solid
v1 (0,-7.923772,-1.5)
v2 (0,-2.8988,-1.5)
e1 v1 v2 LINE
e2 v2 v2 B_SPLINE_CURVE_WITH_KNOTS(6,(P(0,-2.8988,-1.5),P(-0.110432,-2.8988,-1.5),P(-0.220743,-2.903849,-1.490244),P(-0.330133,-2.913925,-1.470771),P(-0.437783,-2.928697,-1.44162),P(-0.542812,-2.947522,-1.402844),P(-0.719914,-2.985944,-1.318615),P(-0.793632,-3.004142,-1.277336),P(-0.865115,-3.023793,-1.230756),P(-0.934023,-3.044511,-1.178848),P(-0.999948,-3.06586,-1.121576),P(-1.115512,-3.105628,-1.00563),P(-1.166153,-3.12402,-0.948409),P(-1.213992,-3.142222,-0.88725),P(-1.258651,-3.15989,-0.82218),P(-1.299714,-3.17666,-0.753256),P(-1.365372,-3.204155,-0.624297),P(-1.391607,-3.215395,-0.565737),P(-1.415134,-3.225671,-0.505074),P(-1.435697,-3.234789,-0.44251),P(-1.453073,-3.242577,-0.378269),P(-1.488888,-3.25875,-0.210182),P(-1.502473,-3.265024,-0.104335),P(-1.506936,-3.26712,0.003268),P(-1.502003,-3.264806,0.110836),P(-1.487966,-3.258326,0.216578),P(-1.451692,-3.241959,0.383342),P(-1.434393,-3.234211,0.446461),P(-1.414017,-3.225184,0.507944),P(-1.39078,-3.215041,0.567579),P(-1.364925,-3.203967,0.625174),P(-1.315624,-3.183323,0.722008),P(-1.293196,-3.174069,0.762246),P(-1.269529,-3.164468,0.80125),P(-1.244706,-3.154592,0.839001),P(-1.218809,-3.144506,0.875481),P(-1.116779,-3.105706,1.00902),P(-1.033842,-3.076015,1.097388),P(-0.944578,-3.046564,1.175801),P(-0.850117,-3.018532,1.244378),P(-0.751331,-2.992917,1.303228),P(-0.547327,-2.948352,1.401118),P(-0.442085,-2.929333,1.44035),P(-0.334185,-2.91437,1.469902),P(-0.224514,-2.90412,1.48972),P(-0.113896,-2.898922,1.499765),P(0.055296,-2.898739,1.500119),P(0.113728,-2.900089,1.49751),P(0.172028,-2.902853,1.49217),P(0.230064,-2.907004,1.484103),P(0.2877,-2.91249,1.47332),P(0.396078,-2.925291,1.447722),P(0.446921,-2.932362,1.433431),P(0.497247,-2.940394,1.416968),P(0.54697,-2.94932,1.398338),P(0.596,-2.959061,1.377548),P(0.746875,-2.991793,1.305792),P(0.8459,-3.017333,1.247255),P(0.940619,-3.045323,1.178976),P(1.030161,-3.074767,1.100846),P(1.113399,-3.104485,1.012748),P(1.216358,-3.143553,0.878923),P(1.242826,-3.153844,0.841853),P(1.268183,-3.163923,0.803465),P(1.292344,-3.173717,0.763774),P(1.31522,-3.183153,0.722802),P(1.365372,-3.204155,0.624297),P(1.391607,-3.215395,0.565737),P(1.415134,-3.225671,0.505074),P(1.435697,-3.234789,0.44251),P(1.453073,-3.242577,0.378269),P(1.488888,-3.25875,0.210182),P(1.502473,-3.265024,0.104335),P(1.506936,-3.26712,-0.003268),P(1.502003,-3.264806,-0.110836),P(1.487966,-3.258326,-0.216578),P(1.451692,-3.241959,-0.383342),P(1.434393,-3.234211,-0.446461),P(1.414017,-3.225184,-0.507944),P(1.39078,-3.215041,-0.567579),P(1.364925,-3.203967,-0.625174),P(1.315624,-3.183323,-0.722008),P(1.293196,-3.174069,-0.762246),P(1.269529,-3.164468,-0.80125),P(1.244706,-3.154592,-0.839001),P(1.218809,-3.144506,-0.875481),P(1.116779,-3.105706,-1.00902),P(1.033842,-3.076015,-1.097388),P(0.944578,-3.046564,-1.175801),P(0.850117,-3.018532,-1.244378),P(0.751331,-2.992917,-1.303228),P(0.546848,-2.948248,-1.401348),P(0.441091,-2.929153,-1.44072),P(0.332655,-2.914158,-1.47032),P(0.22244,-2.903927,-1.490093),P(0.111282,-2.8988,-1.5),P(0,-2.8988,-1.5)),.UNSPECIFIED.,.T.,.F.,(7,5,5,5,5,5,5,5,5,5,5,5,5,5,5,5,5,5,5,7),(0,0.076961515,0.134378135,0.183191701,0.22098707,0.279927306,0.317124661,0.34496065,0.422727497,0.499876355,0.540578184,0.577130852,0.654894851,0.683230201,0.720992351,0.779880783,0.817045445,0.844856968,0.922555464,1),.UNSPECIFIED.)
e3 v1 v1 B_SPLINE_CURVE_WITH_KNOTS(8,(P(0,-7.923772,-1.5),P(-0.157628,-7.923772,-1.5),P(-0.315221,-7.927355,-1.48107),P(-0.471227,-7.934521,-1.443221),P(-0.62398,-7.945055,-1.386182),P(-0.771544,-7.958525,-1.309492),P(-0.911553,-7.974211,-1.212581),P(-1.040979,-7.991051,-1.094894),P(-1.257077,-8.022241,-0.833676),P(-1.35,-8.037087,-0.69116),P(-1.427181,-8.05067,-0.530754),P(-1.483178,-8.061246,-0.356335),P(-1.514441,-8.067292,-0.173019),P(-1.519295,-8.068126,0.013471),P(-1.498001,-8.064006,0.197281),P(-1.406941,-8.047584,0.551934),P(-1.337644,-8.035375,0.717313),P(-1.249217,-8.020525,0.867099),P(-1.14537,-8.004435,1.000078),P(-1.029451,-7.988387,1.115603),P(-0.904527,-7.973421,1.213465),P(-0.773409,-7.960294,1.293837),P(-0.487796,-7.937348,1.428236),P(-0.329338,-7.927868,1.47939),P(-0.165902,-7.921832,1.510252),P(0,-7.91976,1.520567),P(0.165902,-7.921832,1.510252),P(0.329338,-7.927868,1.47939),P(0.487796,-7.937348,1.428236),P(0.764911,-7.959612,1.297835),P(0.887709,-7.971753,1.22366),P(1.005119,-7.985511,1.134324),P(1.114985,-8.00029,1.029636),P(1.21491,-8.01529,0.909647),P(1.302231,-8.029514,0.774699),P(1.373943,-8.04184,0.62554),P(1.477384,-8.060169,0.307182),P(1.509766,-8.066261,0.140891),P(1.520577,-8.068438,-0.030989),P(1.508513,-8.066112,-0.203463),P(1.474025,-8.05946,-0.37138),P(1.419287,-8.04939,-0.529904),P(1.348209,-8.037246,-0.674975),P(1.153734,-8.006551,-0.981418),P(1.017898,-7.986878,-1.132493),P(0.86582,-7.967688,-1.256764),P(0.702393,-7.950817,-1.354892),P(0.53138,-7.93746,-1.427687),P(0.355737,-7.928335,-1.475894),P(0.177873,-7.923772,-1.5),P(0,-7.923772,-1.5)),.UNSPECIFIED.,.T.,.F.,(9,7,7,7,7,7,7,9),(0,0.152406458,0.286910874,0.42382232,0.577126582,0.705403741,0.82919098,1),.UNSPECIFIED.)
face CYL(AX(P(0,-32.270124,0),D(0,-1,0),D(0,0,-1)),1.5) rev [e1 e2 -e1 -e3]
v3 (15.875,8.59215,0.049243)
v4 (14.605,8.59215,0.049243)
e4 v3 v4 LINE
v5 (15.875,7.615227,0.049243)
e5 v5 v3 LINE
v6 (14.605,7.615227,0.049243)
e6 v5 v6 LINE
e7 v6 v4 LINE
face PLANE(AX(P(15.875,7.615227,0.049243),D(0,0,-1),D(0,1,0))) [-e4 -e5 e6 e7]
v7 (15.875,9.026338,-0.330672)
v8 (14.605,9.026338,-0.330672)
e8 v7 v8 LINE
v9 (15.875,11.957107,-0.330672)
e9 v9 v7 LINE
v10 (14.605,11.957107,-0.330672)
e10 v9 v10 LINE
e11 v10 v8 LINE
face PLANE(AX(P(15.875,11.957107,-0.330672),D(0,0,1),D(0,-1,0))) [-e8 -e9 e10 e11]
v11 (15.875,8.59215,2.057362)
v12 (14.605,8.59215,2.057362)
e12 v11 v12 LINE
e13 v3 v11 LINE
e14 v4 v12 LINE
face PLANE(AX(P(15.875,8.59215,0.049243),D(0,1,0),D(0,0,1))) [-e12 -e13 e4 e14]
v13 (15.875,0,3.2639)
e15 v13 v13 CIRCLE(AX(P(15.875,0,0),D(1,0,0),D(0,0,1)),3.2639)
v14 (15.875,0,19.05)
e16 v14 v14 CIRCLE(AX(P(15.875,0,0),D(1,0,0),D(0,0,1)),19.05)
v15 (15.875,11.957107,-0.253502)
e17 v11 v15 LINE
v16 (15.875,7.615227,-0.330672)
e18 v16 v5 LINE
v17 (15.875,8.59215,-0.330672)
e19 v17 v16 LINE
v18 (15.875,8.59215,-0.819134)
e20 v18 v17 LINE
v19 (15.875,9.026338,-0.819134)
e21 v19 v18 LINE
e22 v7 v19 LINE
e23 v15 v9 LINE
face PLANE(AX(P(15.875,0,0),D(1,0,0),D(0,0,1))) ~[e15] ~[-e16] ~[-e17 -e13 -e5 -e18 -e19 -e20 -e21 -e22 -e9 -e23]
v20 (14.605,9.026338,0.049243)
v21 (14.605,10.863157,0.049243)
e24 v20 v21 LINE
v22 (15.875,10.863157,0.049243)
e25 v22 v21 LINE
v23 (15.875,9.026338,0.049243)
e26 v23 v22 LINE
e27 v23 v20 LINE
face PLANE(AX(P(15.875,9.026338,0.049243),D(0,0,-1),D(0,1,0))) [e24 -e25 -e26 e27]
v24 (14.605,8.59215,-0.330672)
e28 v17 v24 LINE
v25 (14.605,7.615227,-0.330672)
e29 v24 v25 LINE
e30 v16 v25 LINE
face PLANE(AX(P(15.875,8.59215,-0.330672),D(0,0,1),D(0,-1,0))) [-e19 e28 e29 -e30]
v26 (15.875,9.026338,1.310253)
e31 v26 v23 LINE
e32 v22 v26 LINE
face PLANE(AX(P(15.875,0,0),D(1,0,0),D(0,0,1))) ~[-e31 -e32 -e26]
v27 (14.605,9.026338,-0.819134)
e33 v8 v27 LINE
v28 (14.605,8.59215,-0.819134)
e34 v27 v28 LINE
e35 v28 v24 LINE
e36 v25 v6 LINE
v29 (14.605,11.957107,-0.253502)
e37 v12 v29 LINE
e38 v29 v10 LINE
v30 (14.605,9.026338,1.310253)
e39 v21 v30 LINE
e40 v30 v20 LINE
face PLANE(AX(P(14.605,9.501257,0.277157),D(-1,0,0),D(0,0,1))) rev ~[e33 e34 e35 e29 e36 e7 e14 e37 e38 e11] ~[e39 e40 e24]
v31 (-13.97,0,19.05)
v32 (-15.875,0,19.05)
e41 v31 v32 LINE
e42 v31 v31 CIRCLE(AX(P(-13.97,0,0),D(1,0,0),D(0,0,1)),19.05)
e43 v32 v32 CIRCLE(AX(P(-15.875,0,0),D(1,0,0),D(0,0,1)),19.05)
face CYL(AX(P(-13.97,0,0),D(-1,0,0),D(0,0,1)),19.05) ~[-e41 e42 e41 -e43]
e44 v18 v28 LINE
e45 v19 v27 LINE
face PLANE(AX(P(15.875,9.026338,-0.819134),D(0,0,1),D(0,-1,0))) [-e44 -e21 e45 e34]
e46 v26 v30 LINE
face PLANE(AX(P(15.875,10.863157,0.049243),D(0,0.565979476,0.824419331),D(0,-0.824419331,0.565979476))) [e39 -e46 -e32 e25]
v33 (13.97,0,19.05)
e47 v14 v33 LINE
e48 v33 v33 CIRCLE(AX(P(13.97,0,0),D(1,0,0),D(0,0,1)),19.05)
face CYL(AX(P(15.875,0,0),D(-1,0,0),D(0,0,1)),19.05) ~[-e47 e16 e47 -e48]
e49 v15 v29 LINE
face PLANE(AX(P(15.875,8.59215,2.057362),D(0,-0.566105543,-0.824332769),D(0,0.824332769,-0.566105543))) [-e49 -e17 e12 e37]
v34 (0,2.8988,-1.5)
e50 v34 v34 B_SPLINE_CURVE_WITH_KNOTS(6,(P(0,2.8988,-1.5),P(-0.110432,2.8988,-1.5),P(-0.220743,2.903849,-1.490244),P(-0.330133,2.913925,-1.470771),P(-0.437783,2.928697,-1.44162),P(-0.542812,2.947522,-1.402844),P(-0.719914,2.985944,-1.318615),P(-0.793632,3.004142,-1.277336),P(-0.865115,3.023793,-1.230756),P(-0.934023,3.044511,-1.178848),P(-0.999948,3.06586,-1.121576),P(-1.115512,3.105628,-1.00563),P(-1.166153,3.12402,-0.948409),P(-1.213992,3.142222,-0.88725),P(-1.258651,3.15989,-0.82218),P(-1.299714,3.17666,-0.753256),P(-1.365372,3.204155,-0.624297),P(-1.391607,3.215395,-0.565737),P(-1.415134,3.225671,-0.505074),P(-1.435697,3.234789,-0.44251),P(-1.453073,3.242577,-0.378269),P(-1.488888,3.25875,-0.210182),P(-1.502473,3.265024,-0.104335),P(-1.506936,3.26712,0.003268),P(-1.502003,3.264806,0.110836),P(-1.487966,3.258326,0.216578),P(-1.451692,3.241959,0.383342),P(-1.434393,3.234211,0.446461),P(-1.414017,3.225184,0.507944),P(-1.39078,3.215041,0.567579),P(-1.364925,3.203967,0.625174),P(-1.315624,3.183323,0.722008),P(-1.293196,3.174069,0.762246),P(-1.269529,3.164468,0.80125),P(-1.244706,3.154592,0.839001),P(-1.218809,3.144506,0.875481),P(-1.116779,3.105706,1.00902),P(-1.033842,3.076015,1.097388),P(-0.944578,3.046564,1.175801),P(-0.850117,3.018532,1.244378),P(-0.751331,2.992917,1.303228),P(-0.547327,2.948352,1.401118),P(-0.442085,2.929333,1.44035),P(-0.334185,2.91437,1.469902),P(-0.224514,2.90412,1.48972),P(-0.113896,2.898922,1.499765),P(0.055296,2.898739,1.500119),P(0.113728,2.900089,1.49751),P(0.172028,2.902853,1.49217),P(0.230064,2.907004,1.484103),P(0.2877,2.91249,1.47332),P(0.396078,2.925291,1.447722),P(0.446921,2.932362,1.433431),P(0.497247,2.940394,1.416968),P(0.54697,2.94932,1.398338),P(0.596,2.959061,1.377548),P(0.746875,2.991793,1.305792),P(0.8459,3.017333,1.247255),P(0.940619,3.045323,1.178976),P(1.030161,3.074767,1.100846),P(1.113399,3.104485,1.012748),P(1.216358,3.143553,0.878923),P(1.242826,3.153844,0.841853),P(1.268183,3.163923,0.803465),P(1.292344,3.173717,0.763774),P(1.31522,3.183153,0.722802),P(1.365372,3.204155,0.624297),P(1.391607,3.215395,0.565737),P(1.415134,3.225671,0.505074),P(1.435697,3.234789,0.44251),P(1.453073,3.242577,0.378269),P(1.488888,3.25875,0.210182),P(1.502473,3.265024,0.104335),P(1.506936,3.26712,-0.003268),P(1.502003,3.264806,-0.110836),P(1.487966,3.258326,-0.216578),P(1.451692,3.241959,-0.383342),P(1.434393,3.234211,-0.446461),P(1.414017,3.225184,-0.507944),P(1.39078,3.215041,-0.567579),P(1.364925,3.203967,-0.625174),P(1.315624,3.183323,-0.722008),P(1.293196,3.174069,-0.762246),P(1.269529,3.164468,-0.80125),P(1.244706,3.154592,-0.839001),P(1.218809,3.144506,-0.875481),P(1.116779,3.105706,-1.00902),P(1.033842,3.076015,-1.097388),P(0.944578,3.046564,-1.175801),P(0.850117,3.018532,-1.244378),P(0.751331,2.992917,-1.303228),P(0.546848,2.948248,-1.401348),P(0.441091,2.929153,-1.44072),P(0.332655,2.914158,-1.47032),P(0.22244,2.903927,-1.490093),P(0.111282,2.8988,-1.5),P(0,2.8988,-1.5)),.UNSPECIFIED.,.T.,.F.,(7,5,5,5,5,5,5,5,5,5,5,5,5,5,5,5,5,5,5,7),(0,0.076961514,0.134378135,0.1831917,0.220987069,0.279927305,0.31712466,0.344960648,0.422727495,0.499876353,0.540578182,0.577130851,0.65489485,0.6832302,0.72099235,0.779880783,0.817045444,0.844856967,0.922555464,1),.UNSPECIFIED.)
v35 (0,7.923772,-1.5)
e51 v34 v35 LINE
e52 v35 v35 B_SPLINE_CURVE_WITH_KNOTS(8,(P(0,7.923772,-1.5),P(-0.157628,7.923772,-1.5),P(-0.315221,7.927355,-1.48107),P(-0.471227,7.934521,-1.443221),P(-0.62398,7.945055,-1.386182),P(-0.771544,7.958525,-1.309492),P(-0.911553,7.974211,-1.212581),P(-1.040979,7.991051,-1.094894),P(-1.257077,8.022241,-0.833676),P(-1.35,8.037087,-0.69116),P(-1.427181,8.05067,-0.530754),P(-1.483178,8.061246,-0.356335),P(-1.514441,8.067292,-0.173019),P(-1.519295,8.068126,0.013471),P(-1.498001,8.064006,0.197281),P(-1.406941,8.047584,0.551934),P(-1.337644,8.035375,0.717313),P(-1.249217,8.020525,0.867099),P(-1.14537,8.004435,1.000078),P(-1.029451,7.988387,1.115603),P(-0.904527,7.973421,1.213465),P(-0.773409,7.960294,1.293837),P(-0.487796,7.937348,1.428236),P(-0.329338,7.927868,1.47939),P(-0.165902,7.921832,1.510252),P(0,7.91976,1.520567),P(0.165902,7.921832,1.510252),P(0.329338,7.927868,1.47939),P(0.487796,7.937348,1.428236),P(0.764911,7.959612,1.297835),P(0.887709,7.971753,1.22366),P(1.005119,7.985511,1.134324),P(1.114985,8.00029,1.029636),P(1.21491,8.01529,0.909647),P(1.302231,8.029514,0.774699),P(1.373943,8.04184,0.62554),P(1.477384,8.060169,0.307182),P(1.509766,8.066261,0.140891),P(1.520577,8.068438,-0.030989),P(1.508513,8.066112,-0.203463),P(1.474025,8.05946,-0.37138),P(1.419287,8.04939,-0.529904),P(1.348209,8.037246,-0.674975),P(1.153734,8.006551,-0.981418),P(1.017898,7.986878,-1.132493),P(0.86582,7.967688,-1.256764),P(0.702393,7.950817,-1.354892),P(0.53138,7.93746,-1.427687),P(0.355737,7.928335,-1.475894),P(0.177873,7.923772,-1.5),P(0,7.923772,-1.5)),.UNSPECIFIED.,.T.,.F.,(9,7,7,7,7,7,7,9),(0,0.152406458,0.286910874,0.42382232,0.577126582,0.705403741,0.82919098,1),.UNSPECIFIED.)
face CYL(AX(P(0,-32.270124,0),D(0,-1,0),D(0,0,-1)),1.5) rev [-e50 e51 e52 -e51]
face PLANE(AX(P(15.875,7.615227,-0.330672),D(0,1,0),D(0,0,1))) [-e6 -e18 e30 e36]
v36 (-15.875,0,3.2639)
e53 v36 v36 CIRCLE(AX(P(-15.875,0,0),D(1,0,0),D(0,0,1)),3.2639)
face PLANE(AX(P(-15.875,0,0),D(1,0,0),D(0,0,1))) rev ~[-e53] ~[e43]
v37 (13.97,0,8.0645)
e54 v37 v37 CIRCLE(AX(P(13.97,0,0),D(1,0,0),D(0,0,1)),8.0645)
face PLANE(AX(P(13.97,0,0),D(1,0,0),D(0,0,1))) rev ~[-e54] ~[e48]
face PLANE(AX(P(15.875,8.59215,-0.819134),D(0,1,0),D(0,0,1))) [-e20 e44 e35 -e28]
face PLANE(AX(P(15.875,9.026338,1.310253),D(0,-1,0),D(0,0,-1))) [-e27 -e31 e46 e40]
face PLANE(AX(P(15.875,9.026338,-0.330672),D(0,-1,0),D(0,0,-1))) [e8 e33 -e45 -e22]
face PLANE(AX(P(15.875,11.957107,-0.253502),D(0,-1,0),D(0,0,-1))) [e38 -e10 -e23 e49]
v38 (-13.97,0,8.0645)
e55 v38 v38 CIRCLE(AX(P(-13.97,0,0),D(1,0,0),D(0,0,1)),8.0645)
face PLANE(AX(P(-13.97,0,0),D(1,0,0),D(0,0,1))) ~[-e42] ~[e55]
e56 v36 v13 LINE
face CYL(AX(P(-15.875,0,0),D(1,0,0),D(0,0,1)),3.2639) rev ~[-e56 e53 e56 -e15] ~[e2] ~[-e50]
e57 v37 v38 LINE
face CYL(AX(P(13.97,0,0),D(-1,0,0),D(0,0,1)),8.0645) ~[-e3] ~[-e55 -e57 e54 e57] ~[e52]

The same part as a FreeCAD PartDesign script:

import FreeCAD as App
import Part
import Sketcher
Q = App.Units.Quantity


def add_polygon(sketch, points):
    """Adds a closed chain of lines whose ends are joined by coincident constraints."""
    first, n = sketch.GeometryCount, len(points)
    for a, b in zip(points, points[1:] + points[:1]):
        sketch.addGeometry(Part.LineSegment(App.Vector(*a, 0), App.Vector(*b, 0)), False)
    for i in range(n):
        sketch.addConstraint(Sketcher.Constraint("Coincident", first + i, 2, first + (i + 1) % n, 1))

doc = App.newDocument("Part")
params = doc.addObject("Spreadsheet::Sheet", "Params")
for row, (alias, value) in enumerate([
    ("sketch1_width", "1.1 in"),
    ("sketch1_width2", "1.25 in"),
    ("revolution_angle", "360 deg"),
    ("pocket2_length", "0.05 in"),
], start=1):
    params.set(f"A{row}", alias)
    params.set(f"B{row}", "=" + value)
    params.setAlias(f"B{row}", alias)

body = doc.addObject("PartDesign::Body", "Body")

# Sketch on XY plane
sketch1 = body.newObject("Sketcher::SketchObject", "Sketch")
sketch1.AttachmentSupport = (doc.getObject("XY_Plane"), [""])
sketch1.MapMode = "FlatFace"
add_polygon(sketch1, [(15.9, 3.3), (15.9, 19.1), (14, 19.1), (14, 8.1), (-14, 8.1), (-14, 19.1), (-15.9, 19.1), (-15.9, 3.3)])  # lines 0-7
sketch1.addConstraint([
    Sketcher.Constraint("Vertical", 0),
    Sketcher.Constraint("Horizontal", 1),
    Sketcher.Constraint("Vertical", 2),
    Sketcher.Constraint("Horizontal", 3),
    Sketcher.Constraint("Vertical", 4),
    Sketcher.Constraint("Horizontal", 5),
    Sketcher.Constraint("Vertical", 6),
    Sketcher.Constraint("Horizontal", 7),
    Sketcher.Constraint("Symmetric", 1, 2, 4, 2, -2),
    Sketcher.Constraint("Equal", 1, 5),
    Sketcher.Constraint("DistanceX", 3, 2, 3, 1, Q("1.1 in")),
    Sketcher.Constraint("DistanceX", 7, 1, 7, 2, Q("1.25 in")),
    Sketcher.Constraint("DistanceY", -1, 1, 0, 2, Q("0.75 in")),
    Sketcher.Constraint("DistanceY", 0, 1, 0, 2, Q("0.6215 in")),
    Sketcher.Constraint("DistanceY", 2, 2, 2, 1, Q("0.4325 in")),
])
sketch1.setExpression("Constraints[18]", "Params.sketch1_width")
sketch1.setExpression("Constraints[19]", "Params.sketch1_width2")
revolution = body.newObject("PartDesign::Revolution", "Revolution")
revolution.Profile = sketch1
revolution.ReferenceAxis = (sketch1, ["H_Axis"])
revolution.setExpression("Angle", "Params.revolution_angle")

# Sketch on XZ plane
sketch2 = body.newObject("Sketcher::SketchObject", "Sketch001")
sketch2.AttachmentSupport = (doc.getObject("XZ_Plane"), [""])
sketch2.MapMode = "FlatFace"
sketch2.addGeometry(Part.Circle(App.Vector(0, 0, 0), App.Vector(0, 0, 1), 1.5), False)
sketch2.addConstraint([
    Sketcher.Constraint("Coincident", 0, 3, -1, 1),
    Sketcher.Constraint("Diameter", 0, Q("3 mm")),
])
pocket1 = body.newObject("PartDesign::Pocket", "Pocket")
pocket1.Profile = sketch2
pocket1.Type = "ThroughAll"
pocket1.Midplane = True

# Sketch on YZ plane
sketch3 = body.newObject("Sketcher::SketchObject", "Sketch002")
sketch3.AttachmentSupport = (doc.getObject("YZ_Plane"), [""])
sketch3.MapMode = "FlatFace"
sketch3.AttachmentOffset = App.Placement(App.Vector(0, 0, 0.625 * 25.4), App.Rotation())
add_polygon(sketch3, [(11.96, -0.33), (11.96, -0.25), (8.59, 2.06), (8.59, 0.05), (7.62, 0.05), (7.62, -0.33), (8.59, -0.33), (8.59, -0.82), (9.03, -0.82), (9.03, -0.33)])  # lines 0-9
add_polygon(sketch3, [(9.03, 0.05), (9.03, 1.31), (10.86, 0.05)])  # lines 10-12
sketch3.addConstraint([
    Sketcher.Constraint("Vertical", 0),
    Sketcher.Constraint("Vertical", 2),
    Sketcher.Constraint("Horizontal", 3),
    Sketcher.Constraint("Vertical", 4),
    Sketcher.Constraint("Horizontal", 5),
    Sketcher.Constraint("Vertical", 6),
    Sketcher.Constraint("Horizontal", 7),
    Sketcher.Constraint("Vertical", 8),
    Sketcher.Constraint("Horizontal", 9),
    Sketcher.Constraint("Vertical", 10),
    Sketcher.Constraint("Horizontal", 12),
    Sketcher.Constraint("Horizontal", 5, 2, 8, 2),
    Sketcher.Constraint("Horizontal", 3, 2, 11, 2),
    Sketcher.Constraint("Vertical", 2, 2, 5, 2),
    Sketcher.Constraint("Vertical", 8, 2, 10, 2),
    Sketcher.Constraint("DistanceX", 7, 1, 7, 2, Q("0.434188 mm")),
    Sketcher.Constraint("DistanceX", 9, 1, 9, 2, Q("2.930769 mm")),
    Sketcher.Constraint("DistanceX", 12, 2, 12, 1, Q("1.836819 mm")),
    Sketcher.Constraint("DistanceY", 0, 1, 0, 2, Q("0.07717 mm")),
    Sketcher.Constraint("DistanceY", 2, 2, 2, 1, Q("2.00812 mm")),
    Sketcher.Constraint("DistanceY", 6, 2, 6, 1, Q("0.488462 mm")),
    Sketcher.Constraint("DistanceY", 10, 1, 10, 2, Q("1.261011 mm")),
    Sketcher.Constraint("DistanceY", 0, 2, -1, 1, Q("0.253502 mm")),
    Sketcher.Constraint("DistanceX", 3, 2, 3, 1, Q("0.976923 mm")),
    Sketcher.Constraint("DistanceY", 4, 2, 4, 1, Q("0.379915 mm")),
    Sketcher.Constraint("DistanceX", -1, 1, 1, 2, Q("8.59215 mm")),
])
pocket2 = body.newObject("PartDesign::Pocket", "Pocket001")
pocket2.Profile = sketch3
pocket2.setExpression("Length", "Params.pocket2_length")

doc.recompute()
